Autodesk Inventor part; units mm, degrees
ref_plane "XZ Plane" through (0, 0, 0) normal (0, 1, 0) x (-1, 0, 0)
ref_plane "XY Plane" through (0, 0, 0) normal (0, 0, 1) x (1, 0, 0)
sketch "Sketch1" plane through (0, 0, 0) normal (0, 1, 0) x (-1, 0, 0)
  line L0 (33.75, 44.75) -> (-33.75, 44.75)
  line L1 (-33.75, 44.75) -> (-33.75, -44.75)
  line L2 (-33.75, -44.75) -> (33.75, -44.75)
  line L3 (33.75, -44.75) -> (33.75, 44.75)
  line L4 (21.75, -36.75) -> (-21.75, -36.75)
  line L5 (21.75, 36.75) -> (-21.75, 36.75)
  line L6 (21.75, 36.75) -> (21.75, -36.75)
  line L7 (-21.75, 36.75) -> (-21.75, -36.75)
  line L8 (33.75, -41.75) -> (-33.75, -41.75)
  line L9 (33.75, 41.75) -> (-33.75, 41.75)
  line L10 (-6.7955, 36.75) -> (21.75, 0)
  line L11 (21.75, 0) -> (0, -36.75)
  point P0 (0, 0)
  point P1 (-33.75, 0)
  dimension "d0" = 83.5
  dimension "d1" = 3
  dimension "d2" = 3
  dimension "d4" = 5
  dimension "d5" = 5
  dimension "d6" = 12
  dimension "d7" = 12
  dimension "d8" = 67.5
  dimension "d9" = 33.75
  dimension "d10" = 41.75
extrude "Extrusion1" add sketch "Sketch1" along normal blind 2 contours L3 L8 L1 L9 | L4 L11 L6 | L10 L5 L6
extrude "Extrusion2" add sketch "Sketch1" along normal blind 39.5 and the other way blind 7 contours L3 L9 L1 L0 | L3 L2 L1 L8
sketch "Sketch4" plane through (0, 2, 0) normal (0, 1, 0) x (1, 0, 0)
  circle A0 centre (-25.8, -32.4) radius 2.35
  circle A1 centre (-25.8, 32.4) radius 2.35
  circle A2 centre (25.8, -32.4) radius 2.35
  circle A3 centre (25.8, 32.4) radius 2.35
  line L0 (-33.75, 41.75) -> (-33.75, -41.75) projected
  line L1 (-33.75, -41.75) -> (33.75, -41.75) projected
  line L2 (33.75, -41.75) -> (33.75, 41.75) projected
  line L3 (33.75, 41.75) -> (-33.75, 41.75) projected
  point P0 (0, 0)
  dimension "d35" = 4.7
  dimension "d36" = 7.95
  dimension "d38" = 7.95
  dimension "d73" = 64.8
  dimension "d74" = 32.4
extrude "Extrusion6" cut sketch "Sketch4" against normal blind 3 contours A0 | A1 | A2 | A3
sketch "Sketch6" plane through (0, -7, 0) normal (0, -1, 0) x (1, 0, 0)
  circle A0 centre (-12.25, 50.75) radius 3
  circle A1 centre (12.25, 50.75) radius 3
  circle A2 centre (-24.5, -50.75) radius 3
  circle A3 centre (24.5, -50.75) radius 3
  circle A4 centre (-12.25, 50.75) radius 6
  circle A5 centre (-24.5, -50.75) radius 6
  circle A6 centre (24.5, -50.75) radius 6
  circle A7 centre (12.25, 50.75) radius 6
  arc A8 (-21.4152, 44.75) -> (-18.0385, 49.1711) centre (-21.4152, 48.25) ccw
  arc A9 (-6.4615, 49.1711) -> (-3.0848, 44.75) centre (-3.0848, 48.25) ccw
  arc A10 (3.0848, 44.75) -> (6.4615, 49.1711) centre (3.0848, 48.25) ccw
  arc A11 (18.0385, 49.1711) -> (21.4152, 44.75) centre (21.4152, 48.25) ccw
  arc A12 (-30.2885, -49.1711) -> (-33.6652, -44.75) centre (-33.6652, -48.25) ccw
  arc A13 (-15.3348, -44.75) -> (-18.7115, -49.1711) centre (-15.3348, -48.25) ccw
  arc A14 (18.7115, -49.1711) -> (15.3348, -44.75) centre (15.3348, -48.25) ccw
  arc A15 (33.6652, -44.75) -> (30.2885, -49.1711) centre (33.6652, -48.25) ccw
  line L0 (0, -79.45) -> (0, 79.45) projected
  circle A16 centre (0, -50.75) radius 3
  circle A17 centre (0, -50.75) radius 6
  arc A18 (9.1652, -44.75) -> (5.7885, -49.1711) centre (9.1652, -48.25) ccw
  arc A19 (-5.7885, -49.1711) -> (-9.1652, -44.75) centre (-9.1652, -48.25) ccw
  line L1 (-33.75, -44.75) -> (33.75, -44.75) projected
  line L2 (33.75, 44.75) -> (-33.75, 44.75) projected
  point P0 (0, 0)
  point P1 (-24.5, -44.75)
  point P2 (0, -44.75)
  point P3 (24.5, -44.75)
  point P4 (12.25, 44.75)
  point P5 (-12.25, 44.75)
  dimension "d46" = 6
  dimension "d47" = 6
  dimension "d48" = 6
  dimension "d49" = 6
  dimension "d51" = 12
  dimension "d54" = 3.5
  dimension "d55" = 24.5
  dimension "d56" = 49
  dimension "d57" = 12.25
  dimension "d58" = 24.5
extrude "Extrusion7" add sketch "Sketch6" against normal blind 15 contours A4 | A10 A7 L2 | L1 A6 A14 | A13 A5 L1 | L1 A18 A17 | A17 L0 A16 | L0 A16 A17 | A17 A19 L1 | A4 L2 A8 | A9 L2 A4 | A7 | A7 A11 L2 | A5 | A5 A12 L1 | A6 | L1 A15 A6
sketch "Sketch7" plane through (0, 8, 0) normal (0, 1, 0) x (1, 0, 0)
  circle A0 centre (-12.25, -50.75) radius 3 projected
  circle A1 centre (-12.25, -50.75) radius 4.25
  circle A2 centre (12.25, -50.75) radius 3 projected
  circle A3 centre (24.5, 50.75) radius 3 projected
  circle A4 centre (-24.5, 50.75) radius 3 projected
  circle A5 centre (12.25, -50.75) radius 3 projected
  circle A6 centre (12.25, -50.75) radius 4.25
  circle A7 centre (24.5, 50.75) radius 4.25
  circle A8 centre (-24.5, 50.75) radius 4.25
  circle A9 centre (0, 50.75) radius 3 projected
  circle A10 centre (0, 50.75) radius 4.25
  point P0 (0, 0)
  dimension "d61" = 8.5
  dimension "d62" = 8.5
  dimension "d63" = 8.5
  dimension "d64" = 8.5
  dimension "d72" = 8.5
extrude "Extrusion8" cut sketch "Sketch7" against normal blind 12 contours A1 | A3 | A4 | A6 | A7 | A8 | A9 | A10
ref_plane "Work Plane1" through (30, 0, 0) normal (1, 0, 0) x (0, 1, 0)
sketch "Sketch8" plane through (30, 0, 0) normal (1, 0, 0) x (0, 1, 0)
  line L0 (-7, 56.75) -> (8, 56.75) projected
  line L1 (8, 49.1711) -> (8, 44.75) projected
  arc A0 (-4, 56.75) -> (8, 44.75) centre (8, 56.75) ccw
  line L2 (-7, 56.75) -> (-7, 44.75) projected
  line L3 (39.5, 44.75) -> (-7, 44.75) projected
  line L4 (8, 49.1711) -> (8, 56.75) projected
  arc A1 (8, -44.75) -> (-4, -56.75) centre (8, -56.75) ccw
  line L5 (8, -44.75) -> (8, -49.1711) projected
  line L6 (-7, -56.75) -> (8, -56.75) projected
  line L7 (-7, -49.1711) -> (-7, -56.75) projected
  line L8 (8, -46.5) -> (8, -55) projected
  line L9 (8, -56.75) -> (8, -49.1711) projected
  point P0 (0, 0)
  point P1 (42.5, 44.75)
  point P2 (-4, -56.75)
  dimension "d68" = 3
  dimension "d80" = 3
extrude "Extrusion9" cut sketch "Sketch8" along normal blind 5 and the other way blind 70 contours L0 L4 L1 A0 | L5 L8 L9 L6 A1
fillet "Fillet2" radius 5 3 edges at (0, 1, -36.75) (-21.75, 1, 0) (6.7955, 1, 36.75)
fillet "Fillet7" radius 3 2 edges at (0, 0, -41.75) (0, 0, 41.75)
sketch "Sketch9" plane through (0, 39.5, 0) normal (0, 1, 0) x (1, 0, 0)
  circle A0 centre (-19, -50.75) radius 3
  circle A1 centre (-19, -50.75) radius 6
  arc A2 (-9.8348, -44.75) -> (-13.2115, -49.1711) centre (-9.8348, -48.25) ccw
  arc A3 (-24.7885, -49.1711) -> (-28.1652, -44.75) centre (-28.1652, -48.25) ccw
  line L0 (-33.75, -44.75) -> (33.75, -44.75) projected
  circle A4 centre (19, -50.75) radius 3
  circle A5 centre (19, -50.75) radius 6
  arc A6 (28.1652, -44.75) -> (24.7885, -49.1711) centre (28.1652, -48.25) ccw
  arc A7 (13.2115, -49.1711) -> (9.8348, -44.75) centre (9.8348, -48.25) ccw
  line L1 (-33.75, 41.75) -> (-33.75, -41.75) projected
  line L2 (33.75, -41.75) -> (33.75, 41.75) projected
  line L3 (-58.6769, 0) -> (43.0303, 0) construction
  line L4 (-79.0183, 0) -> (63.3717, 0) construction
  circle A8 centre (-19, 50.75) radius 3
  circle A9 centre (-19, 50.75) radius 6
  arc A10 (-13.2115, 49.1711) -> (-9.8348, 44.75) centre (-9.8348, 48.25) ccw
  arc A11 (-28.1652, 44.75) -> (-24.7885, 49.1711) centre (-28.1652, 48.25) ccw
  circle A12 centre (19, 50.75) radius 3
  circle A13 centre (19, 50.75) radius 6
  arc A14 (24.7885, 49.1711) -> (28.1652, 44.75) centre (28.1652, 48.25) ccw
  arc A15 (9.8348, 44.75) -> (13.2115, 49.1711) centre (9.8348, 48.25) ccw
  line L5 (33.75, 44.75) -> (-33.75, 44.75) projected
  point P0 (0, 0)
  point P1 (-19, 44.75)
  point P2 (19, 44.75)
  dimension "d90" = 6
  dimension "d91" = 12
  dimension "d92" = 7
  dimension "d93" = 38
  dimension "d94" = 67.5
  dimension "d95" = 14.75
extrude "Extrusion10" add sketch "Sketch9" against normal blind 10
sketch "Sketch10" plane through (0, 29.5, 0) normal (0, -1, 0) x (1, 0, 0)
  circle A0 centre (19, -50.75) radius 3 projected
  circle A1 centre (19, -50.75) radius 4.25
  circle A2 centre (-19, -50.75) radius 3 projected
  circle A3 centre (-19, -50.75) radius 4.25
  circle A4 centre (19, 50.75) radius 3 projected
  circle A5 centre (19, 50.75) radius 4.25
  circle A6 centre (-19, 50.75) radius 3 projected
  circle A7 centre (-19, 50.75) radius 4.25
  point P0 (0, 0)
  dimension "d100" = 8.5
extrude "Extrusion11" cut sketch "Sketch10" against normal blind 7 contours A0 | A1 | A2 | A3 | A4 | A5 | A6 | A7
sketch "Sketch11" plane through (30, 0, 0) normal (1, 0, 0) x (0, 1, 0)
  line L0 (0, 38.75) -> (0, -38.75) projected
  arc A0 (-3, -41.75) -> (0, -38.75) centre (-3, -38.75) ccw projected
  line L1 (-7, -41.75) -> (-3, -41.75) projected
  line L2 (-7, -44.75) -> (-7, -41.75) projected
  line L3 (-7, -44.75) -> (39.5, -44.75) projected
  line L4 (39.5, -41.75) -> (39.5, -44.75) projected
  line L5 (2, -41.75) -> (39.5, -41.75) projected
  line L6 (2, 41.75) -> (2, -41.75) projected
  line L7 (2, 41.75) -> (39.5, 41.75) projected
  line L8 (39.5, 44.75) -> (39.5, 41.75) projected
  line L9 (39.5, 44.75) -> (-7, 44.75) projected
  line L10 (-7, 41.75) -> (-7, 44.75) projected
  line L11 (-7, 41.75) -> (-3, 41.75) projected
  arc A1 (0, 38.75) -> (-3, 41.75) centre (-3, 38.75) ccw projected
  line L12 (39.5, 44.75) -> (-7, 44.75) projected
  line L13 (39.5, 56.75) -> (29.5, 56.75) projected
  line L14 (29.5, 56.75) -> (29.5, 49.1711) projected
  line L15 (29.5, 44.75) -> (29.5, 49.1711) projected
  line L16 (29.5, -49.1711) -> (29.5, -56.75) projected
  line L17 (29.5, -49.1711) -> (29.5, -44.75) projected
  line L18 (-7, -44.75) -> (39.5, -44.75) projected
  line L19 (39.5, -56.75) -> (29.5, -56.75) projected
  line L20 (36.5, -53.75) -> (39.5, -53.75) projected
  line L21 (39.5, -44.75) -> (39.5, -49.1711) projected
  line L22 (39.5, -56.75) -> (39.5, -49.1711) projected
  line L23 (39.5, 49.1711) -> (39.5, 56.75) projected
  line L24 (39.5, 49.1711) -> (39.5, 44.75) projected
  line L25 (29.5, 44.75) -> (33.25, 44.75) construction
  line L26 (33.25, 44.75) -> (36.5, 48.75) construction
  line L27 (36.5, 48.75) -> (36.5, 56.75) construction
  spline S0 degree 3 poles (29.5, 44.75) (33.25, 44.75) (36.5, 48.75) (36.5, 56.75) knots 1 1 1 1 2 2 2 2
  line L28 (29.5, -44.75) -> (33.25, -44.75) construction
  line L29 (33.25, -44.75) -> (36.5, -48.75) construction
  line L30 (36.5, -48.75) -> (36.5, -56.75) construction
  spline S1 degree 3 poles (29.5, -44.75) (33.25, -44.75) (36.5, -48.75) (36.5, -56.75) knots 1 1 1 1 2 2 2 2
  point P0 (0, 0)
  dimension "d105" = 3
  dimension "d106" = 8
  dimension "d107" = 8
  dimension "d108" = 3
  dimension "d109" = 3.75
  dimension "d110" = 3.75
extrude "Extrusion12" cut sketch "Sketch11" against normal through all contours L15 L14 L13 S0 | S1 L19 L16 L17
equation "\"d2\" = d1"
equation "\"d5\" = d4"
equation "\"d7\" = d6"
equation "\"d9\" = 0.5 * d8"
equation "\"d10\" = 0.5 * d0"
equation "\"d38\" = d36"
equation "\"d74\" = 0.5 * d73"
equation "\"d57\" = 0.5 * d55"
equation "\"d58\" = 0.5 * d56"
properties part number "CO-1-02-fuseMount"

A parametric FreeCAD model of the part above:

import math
import FreeCAD as App
import Part
import Sketcher
from FreeCAD import Vector
Q = App.Units.Quantity


def edges_at(feature, points):
    """Names of the edges that pass closest to the given points."""
    edges = feature.Shape.Edges
    near = lambda p: min(range(len(edges)), key=lambda i: edges[i].distToShape(Part.Vertex(*p))[0])
    return sorted({f"Edge{near(p) + 1}" for p in points})

doc = App.newDocument("Part")
body = doc.addObject("PartDesign::Body", "Body")

# Sketch on XZ plane
sketch1 = doc.addObject("Sketcher::SketchObject", "Sketch")
body.addObject(sketch1)
sketch1.AttachmentSupport = (doc.XZ_Plane, [""])
sketch1.MapMode = "FlatFace"
sketch1.addGeometry(Part.LineSegment(Vector(-34, -42, 0), Vector(-34, 42, 0)), False)
sketch1.addGeometry(Part.LineSegment(Vector(-34, 42, 0), Vector(34, 42, 0)), False)
sketch1.addGeometry(Part.LineSegment(Vector(34, 42, 0), Vector(34, -42, 0)), False)
sketch1.addGeometry(Part.LineSegment(Vector(34, -42, 0), Vector(-34, -42, 0)), False)
sketch1.addGeometry(Part.LineSegment(Vector(22, 37, 0), Vector(7, 37, 0)), False)
sketch1.addGeometry(Part.LineSegment(Vector(7, 37, 0), Vector(-22, 0, 0)), False)
sketch1.addGeometry(Part.LineSegment(Vector(-22, 0, 0), Vector(0, -37, 0)), False)
sketch1.addGeometry(Part.LineSegment(Vector(0, -37, 0), Vector(22, -37, 0)), False)
sketch1.addGeometry(Part.LineSegment(Vector(22, -37, 0), Vector(22, 37, 0)), False)
sketch1.addConstraint(Sketcher.Constraint("Coincident", 0, 2, 1, 1))
sketch1.addConstraint(Sketcher.Constraint("Coincident", 1, 2, 2, 1))
sketch1.addConstraint(Sketcher.Constraint("Coincident", 2, 2, 3, 1))
sketch1.addConstraint(Sketcher.Constraint("Coincident", 3, 2, 0, 1))
sketch1.addConstraint(Sketcher.Constraint("Coincident", 4, 2, 5, 1))
sketch1.addConstraint(Sketcher.Constraint("Coincident", 5, 2, 6, 1))
sketch1.addConstraint(Sketcher.Constraint("Coincident", 6, 2, 7, 1))
sketch1.addConstraint(Sketcher.Constraint("Coincident", 7, 2, 8, 1))
sketch1.addConstraint(Sketcher.Constraint("Coincident", 8, 2, 4, 1))
sketch1.addConstraint(Sketcher.Constraint("Vertical", 0))
sketch1.addConstraint(Sketcher.Constraint("Horizontal", 1))
sketch1.addConstraint(Sketcher.Constraint("Vertical", 2))
sketch1.addConstraint(Sketcher.Constraint("Horizontal", 3))
sketch1.addConstraint(Sketcher.Constraint("Horizontal", 4))
sketch1.addConstraint(Sketcher.Constraint("Horizontal", 7))
sketch1.addConstraint(Sketcher.Constraint("Vertical", 8))
sketch1.addConstraint(Sketcher.Constraint("Symmetric", 0, 2, 2, 2, -1, 1))
sketch1.addConstraint(Sketcher.Constraint("PointOnObject", 5, 2, -1))
sketch1.addConstraint(Sketcher.Constraint("PointOnObject", 6, 2, -2))
sketch1.addConstraint(Sketcher.Constraint("DistanceX", 1, 1, 1, 2, Q("67.5 mm")))
sketch1.addConstraint(Sketcher.Constraint("DistanceY", 0, 1, 0, 2, Q("83.5 mm")))
sketch1.addConstraint(Sketcher.Constraint("DistanceY", 4, 2, 1, 2, Q("5 mm")))
sketch1.addConstraint(Sketcher.Constraint("DistanceX", 0, 2, 5, 2, Q("12 mm")))
sketch1.addConstraint(Sketcher.Constraint("DistanceY", 2, 2, 6, 2, Q("5 mm")))
sketch1.addConstraint(Sketcher.Constraint("DistanceX", 7, 2, 2, 2, Q("12 mm")))
sketch1.addConstraint(Sketcher.Constraint("Distance", 5, Q("46.534 mm")))
pad1 = doc.addObject("PartDesign::Pad", "Pad")
body.addObject(pad1)
pad1.Profile = sketch1
pad1.Length = 2
pad1.Reversed = True

# Sketch on XZ plane
sketch2 = doc.addObject("Sketcher::SketchObject", "Sketch001")
body.addObject(sketch2)
sketch2.AttachmentSupport = (doc.XZ_Plane, [""])
sketch2.MapMode = "FlatFace"
sketch2.addGeometry(Part.LineSegment(Vector(-33.8, 41.8, 0), Vector(-33.8, 44.8, 0)), False)
sketch2.addGeometry(Part.LineSegment(Vector(-33.8, 44.8, 0), Vector(33.8, 44.8, 0)), False)
sketch2.addGeometry(Part.LineSegment(Vector(33.8, 44.8, 0), Vector(33.8, 41.8, 0)), False)
sketch2.addGeometry(Part.LineSegment(Vector(33.8, 41.8, 0), Vector(-33.8, 41.8, 0)), False)
sketch2.addGeometry(Part.LineSegment(Vector(-33.8, -44.8, 0), Vector(-33.8, -41.8, 0)), False)
sketch2.addGeometry(Part.LineSegment(Vector(-33.8, -41.8, 0), Vector(33.8, -41.8, 0)), False)
sketch2.addGeometry(Part.LineSegment(Vector(33.8, -41.8, 0), Vector(33.8, -44.8, 0)), False)
sketch2.addGeometry(Part.LineSegment(Vector(33.8, -44.8, 0), Vector(-33.8, -44.8, 0)), False)
sketch2.addConstraint(Sketcher.Constraint("Coincident", 0, 2, 1, 1))
sketch2.addConstraint(Sketcher.Constraint("Coincident", 1, 2, 2, 1))
sketch2.addConstraint(Sketcher.Constraint("Coincident", 2, 2, 3, 1))
sketch2.addConstraint(Sketcher.Constraint("Coincident", 3, 2, 0, 1))
sketch2.addConstraint(Sketcher.Constraint("Coincident", 4, 2, 5, 1))
sketch2.addConstraint(Sketcher.Constraint("Coincident", 5, 2, 6, 1))
sketch2.addConstraint(Sketcher.Constraint("Coincident", 6, 2, 7, 1))
sketch2.addConstraint(Sketcher.Constraint("Coincident", 7, 2, 4, 1))
sketch2.addConstraint(Sketcher.Constraint("Vertical", 0))
sketch2.addConstraint(Sketcher.Constraint("Horizontal", 1))
sketch2.addConstraint(Sketcher.Constraint("Vertical", 2))
sketch2.addConstraint(Sketcher.Constraint("Horizontal", 3))
sketch2.addConstraint(Sketcher.Constraint("Vertical", 4))
sketch2.addConstraint(Sketcher.Constraint("Horizontal", 5))
sketch2.addConstraint(Sketcher.Constraint("Vertical", 6))
sketch2.addConstraint(Sketcher.Constraint("Horizontal", 7))
sketch2.addConstraint(Sketcher.Constraint("Symmetric", 2, 2, 4, 2, -1, 1))
sketch2.addConstraint(Sketcher.Constraint("Symmetric", 0, 2, 6, 2, -1, 1))
sketch2.addConstraint(Sketcher.Constraint("Vertical", 3, 2, 4, 2))
sketch2.addConstraint(Sketcher.Constraint("DistanceY", 0, 1, 0, 2, Q("3 mm")))
sketch2.addConstraint(Sketcher.Constraint("DistanceX", 1, 1, 1, 2, Q("67.5 mm")))
sketch2.addConstraint(Sketcher.Constraint("DistanceY", 4, 2, 3, 2, Q("83.5 mm")))
pad2 = doc.addObject("PartDesign::Pad", "Pad001")
body.addObject(pad2)
pad2.Profile = sketch2
pad2.Type = "TwoLengths"
pad2.Length = 39.5
pad2.Length2 = 7
pad2.Reversed = True

# Sketch on XZ plane
sketch3 = doc.addObject("Sketcher::SketchObject", "Sketch002")
body.addObject(sketch3)
sketch3.AttachmentSupport = (doc.XZ_Plane, [""])
sketch3.MapMode = "FlatFace"
sketch3.AttachmentOffset = App.Placement(Vector(0, 0, -2), App.Rotation())
sketch3.addGeometry(Part.Circle(Vector(-25.8, 32.4, 0), Vector(0, 0, 1), 2.4), False)
sketch3.addGeometry(Part.Circle(Vector(-25.8, -32.4, 0), Vector(0, 0, 1), 2.4), False)
sketch3.addGeometry(Part.Circle(Vector(25.8, 32.4, 0), Vector(0, 0, 1), 2.4), False)
sketch3.addGeometry(Part.Circle(Vector(25.8, -32.4, 0), Vector(0, 0, 1), 2.4), False)
sketch3.addConstraint(Sketcher.Constraint("Equal", 0, 1))
sketch3.addConstraint(Sketcher.Constraint("Equal", 1, 2))
sketch3.addConstraint(Sketcher.Constraint("Equal", 2, 3))
sketch3.addConstraint(Sketcher.Constraint("Symmetric", 1, 3, 2, 3, -1, 1))
sketch3.addConstraint(Sketcher.Constraint("Symmetric", 0, 3, 3, 3, -1, 1))
sketch3.addConstraint(Sketcher.Constraint("Symmetric", 0, 3, 2, 3, -2))
sketch3.addConstraint(Sketcher.Constraint("Diameter", 0, Q("4.7 mm")))
sketch3.addConstraint(Sketcher.Constraint("DistanceY", -1, 1, 0, 3, Q("32.4 mm")))
sketch3.addConstraint(Sketcher.Constraint("DistanceX", 0, 3, -1, 1, Q("25.8 mm")))
pocket1 = doc.addObject("PartDesign::Pocket", "Pocket")
body.addObject(pocket1)
pocket1.Profile = sketch3
pocket1.Length = 3
pocket1.Reversed = True

# Sketch on XZ plane
sketch4 = doc.addObject("Sketcher::SketchObject", "Sketch003")
body.addObject(sketch4)
sketch4.AttachmentSupport = (doc.XZ_Plane, [""])
sketch4.MapMode = "FlatFace"
sketch4.AttachmentOffset = App.Placement(Vector(0, 0, 7), App.Rotation())
sketch4.addGeometry(Part.ArcOfCircle(Part.Circle(Vector(-12.2, 50.8, 0), Vector(0, 0, 1), 6), math.radians(-15), math.radians(195)), False)
sketch4.addGeometry(Part.ArcOfCircle(Part.Circle(Vector(-21.4, 48.2, 0), Vector(0, 0, 1), 3.5), math.radians(-90), math.radians(15)), False)
sketch4.addGeometry(Part.LineSegment(Vector(-21.4, 44.8, 0), Vector(-3.1, 44.8, 0)), False)
sketch4.addGeometry(Part.ArcOfCircle(Part.Circle(Vector(-3.1, 48.2, 0), Vector(0, 0, 1), 3.5), math.radians(165), math.radians(270)), False)
sketch4.addGeometry(Part.Circle(Vector(-12.2, 50.8, 0), Vector(0, 0, 1), 3), False)
sketch4.addGeometry(Part.ArcOfCircle(Part.Circle(Vector(3.1, 48.2, 0), Vector(0, 0, 1), 3.5), math.radians(-90), math.radians(15)), False)
sketch4.addGeometry(Part.LineSegment(Vector(3.1, 44.8, 0), Vector(21.4, 44.8, 0)), False)
sketch4.addGeometry(Part.ArcOfCircle(Part.Circle(Vector(21.4, 48.2, 0), Vector(0, 0, 1), 3.5), math.radians(165), math.radians(270)), False)
sketch4.addGeometry(Part.ArcOfCircle(Part.Circle(Vector(12.2, 50.8, 0), Vector(0, 0, 1), 6), math.radians(-15), math.radians(195)), False)
sketch4.addGeometry(Part.Circle(Vector(12.2, 50.8, 0), Vector(0, 0, 1), 3), False)
sketch4.addGeometry(Part.ArcOfCircle(Part.Circle(Vector(15.3, -48.2, 0), Vector(0, 0, 1), 3.5), math.radians(-15), math.radians(90)), False)
sketch4.addGeometry(Part.ArcOfCircle(Part.Circle(Vector(24.5, -50.8, 0), Vector(0, 0, 1), 6), math.radians(165), math.radians(375)), False)
sketch4.addGeometry(Part.ArcOfCircle(Part.Circle(Vector(33.7, -48.2, 0), Vector(0, 0, 1), 3.5), math.radians(90), math.radians(195)), False)
sketch4.addGeometry(Part.LineSegment(Vector(33.7, -44.8, 0), Vector(15.3, -44.8, 0)), False)
sketch4.addGeometry(Part.Circle(Vector(24.5, -50.8, 0), Vector(0, 0, 1), 3), False)
sketch4.addGeometry(Part.ArcOfCircle(Part.Circle(Vector(-15.3, -48.2, 0), Vector(0, 0, 1), 3.5), math.radians(90), math.radians(195)), False)
sketch4.addGeometry(Part.LineSegment(Vector(-15.3, -44.8, 0), Vector(-33.7, -44.8, 0)), False)
sketch4.addGeometry(Part.ArcOfCircle(Part.Circle(Vector(-33.7, -48.2, 0), Vector(0, 0, 1), 3.5), math.radians(-15), math.radians(90)), False)
sketch4.addGeometry(Part.ArcOfCircle(Part.Circle(Vector(-24.5, -50.8, 0), Vector(0, 0, 1), 6), math.radians(165), math.radians(375)), False)
sketch4.addGeometry(Part.Circle(Vector(-24.5, -50.8, 0), Vector(0, 0, 1), 3), False)
sketch4.addGeometry(Part.LineSegment(Vector(9.2, -44.8, 0), Vector(-9.2, -44.8, 0)), False)
sketch4.addGeometry(Part.ArcOfCircle(Part.Circle(Vector(-9.2, -48.2, 0), Vector(0, 0, 1), 3.5), math.radians(-15), math.radians(90)), False)
sketch4.addGeometry(Part.ArcOfCircle(Part.Circle(Vector(0, -50.8, 0), Vector(0, 0, 1), 6), math.radians(165), math.radians(375)), False)
sketch4.addGeometry(Part.ArcOfCircle(Part.Circle(Vector(9.2, -48.2, 0), Vector(0, 0, 1), 3.5), math.radians(90), math.radians(195)), False)
sketch4.addGeometry(Part.Circle(Vector(0, -50.8, 0), Vector(0, 0, 1), 3), False)
sketch4.addConstraint(Sketcher.Constraint("Tangent", 0, 2, 1, 2))
sketch4.addConstraint(Sketcher.Constraint("Tangent", 1, 1, 2, 1))
sketch4.addConstraint(Sketcher.Constraint("Tangent", 2, 2, 3, 2))
sketch4.addConstraint(Sketcher.Constraint("Tangent", 3, 1, 0, 1))
sketch4.addConstraint(Sketcher.Constraint("Tangent", 5, 1, 6, 1))
sketch4.addConstraint(Sketcher.Constraint("Tangent", 6, 2, 7, 2))
sketch4.addConstraint(Sketcher.Constraint("Tangent", 7, 1, 8, 1))
sketch4.addConstraint(Sketcher.Constraint("Tangent", 8, 2, 5, 2))
sketch4.addConstraint(Sketcher.Constraint("Tangent", 10, 1, 11, 1))
sketch4.addConstraint(Sketcher.Constraint("Tangent", 11, 2, 12, 2))
sketch4.addConstraint(Sketcher.Constraint("Tangent", 12, 1, 13, 1))
sketch4.addConstraint(Sketcher.Constraint("Tangent", 13, 2, 10, 2))
sketch4.addConstraint(Sketcher.Constraint("Tangent", 15, 1, 16, 1))
sketch4.addConstraint(Sketcher.Constraint("Tangent", 16, 2, 17, 2))
sketch4.addConstraint(Sketcher.Constraint("Tangent", 17, 1, 18, 1))
sketch4.addConstraint(Sketcher.Constraint("Tangent", 18, 2, 15, 2))
sketch4.addConstraint(Sketcher.Constraint("Tangent", 20, 2, 21, 2))
sketch4.addConstraint(Sketcher.Constraint("Tangent", 21, 1, 22, 1))
sketch4.addConstraint(Sketcher.Constraint("Tangent", 22, 2, 23, 2))
sketch4.addConstraint(Sketcher.Constraint("Tangent", 23, 1, 20, 1))
sketch4.addConstraint(Sketcher.Constraint("Horizontal", 2))
sketch4.addConstraint(Sketcher.Constraint("Horizontal", 6))
sketch4.addConstraint(Sketcher.Constraint("Horizontal", 13))
sketch4.addConstraint(Sketcher.Constraint("Horizontal", 16))
sketch4.addConstraint(Sketcher.Constraint("Horizontal", 20))
sketch4.addConstraint(Sketcher.Constraint("Coincident", 4, 3, 0, 3))
sketch4.addConstraint(Sketcher.Constraint("Coincident", 9, 3, 8, 3))
sketch4.addConstraint(Sketcher.Constraint("Coincident", 14, 3, 11, 3))
sketch4.addConstraint(Sketcher.Constraint("Coincident", 19, 3, 18, 3))
sketch4.addConstraint(Sketcher.Constraint("Coincident", 24, 3, 22, 3))
sketch4.addConstraint(Sketcher.Constraint("Equal", 1, 3))
sketch4.addConstraint(Sketcher.Constraint("Equal", 3, 5))
sketch4.addConstraint(Sketcher.Constraint("Equal", 5, 7))
sketch4.addConstraint(Sketcher.Constraint("Equal", 0, 8))
sketch4.addConstraint(Sketcher.Constraint("Equal", 4, 9))
sketch4.addConstraint(Sketcher.Constraint("Equal", 7, 10))
sketch4.addConstraint(Sketcher.Constraint("Equal", 8, 11))
sketch4.addConstraint(Sketcher.Constraint("Equal", 10, 12))
sketch4.addConstraint(Sketcher.Constraint("Equal", 9, 14))
sketch4.addConstraint(Sketcher.Constraint("Equal", 12, 15))
sketch4.addConstraint(Sketcher.Constraint("Equal", 15, 17))
sketch4.addConstraint(Sketcher.Constraint("Equal", 11, 18))
sketch4.addConstraint(Sketcher.Constraint("Equal", 14, 19))
sketch4.addConstraint(Sketcher.Constraint("Equal", 17, 21))
sketch4.addConstraint(Sketcher.Constraint("Equal", 18, 22))
sketch4.addConstraint(Sketcher.Constraint("Equal", 21, 23))
sketch4.addConstraint(Sketcher.Constraint("Equal", 19, 24))
sketch4.addConstraint(Sketcher.Constraint("Symmetric", 3, 3, 5, 3, -2))
sketch4.addConstraint(Sketcher.Constraint("Symmetric", 10, 3, 15, 3, -2))
sketch4.addConstraint(Sketcher.Constraint("PointOnObject", 22, 3, -2))
sketch4.addConstraint(Sketcher.Constraint("Horizontal", 4, 3, 8, 3))
sketch4.addConstraint(Sketcher.Constraint("Horizontal", 14, 3, 18, 3))
sketch4.addConstraint(Sketcher.Constraint("Horizontal", 17, 3, 21, 3))
sketch4.addConstraint(Sketcher.Constraint("Horizontal", 19, 3, 22, 3))
sketch4.addConstraint(Sketcher.Constraint("Equal", 6, 13))
sketch4.addConstraint(Sketcher.Constraint("Diameter", 4, Q("6 mm")))
sketch4.addConstraint(Sketcher.Constraint("Radius", 0, Q("6 mm")))
sketch4.addConstraint(Sketcher.Constraint("Radius", 1, Q("3.5 mm")))
sketch4.addConstraint(Sketcher.Constraint("DistanceX", 15, 3, 12, 3, Q("49 mm")))
sketch4.addConstraint(Sketcher.Constraint("DistanceY", 1, 1, 0, 3, Q("6 mm")))
sketch4.addConstraint(Sketcher.Constraint("DistanceX", 1, 3, 5, 3, Q("24.5 mm")))
sketch4.addConstraint(Sketcher.Constraint("DistanceY", 10, 3, 8, 3, Q("99 mm")))
sketch4.addConstraint(Sketcher.Constraint("DistanceY", -1, 1, 0, 3, Q("50.75 mm")))
pad3 = doc.addObject("PartDesign::Pad", "Pad002")
body.addObject(pad3)
pad3.Profile = sketch4
pad3.Length = 15
pad3.Reversed = True

# Sketch on XZ plane
sketch5 = doc.addObject("Sketcher::SketchObject", "Sketch004")
body.addObject(sketch5)
sketch5.AttachmentSupport = (doc.XZ_Plane, [""])
sketch5.MapMode = "FlatFace"
sketch5.AttachmentOffset = App.Placement(Vector(0, 0, -8), App.Rotation())
sketch5.addGeometry(Part.Circle(Vector(-12.2, 50.8, 0), Vector(0, 0, 1), 4.2), False)
sketch5.addGeometry(Part.Circle(Vector(-12.2, 50.8, 0), Vector(0, 0, 1), 3), False)
sketch5.addGeometry(Part.Circle(Vector(24.5, -50.8, 0), Vector(0, 0, 1), 4.2), False)
sketch5.addGeometry(Part.Circle(Vector(-24.5, -50.8, 0), Vector(0, 0, 1), 4.2), False)
sketch5.addGeometry(Part.Circle(Vector(12.2, 50.8, 0), Vector(0, 0, 1), 4.2), False)
sketch5.addGeometry(Part.Circle(Vector(12.2, 50.8, 0), Vector(0, 0, 1), 3), False)
sketch5.addGeometry(Part.Circle(Vector(0, -50.8, 0), Vector(0, 0, 1), 4.2), False)
sketch5.addConstraint(Sketcher.Constraint("Coincident", 1, 3, 0, 3))
sketch5.addConstraint(Sketcher.Constraint("Coincident", 5, 3, 4, 3))
sketch5.addConstraint(Sketcher.Constraint("Equal", 0, 2))
sketch5.addConstraint(Sketcher.Constraint("Equal", 2, 3))
sketch5.addConstraint(Sketcher.Constraint("Equal", 3, 4))
sketch5.addConstraint(Sketcher.Constraint("Equal", 1, 5))
sketch5.addConstraint(Sketcher.Constraint("Equal", 4, 6))
sketch5.addConstraint(Sketcher.Constraint("Symmetric", 2, 3, 3, 3, -2))
sketch5.addConstraint(Sketcher.Constraint("Symmetric", 0, 3, 4, 3, -2))
sketch5.addConstraint(Sketcher.Constraint("PointOnObject", 6, 3, -2))
sketch5.addConstraint(Sketcher.Constraint("Horizontal", 3, 3, 6, 3))
sketch5.addConstraint(Sketcher.Constraint("Diameter", 0, Q("8.5 mm")))
sketch5.addConstraint(Sketcher.Constraint("Diameter", 1, Q("6 mm")))
sketch5.addConstraint(Sketcher.Constraint("DistanceX", 3, 3, 2, 3, Q("49 mm")))
sketch5.addConstraint(Sketcher.Constraint("DistanceY", 2, 3, 0, 3, Q("101.5 mm")))
sketch5.addConstraint(Sketcher.Constraint("DistanceX", 0, 3, 4, 3, Q("24.5 mm")))
sketch5.addConstraint(Sketcher.Constraint("DistanceY", -1, 1, 0, 3, Q("50.75 mm")))
pocket2 = doc.addObject("PartDesign::Pocket", "Pocket001")
body.addObject(pocket2)
pocket2.Profile = sketch5
pocket2.Length = 12
pocket2.Reversed = True

# Sketch on YZ plane
sketch6 = doc.addObject("Sketcher::SketchObject", "Sketch005")
body.addObject(sketch6)
sketch6.AttachmentSupport = (doc.YZ_Plane, [""])
sketch6.MapMode = "FlatFace"
sketch6.AttachmentOffset = App.Placement(Vector(0, 0, 30), App.Rotation())
sketch6.addGeometry(Part.LineSegment(Vector(8, 57, 0), Vector(-4, 57, 0)), False)
sketch6.addGeometry(Part.ArcOfCircle(Part.Circle(Vector(8, 57, 0), Vector(0, 0, 1), 12), math.radians(180), math.radians(270)), False)
sketch6.addGeometry(Part.LineSegment(Vector(8, 45, 0), Vector(8, 57, 0)), False)
sketch6.addGeometry(Part.LineSegment(Vector(8, -57, 0), Vector(8, -45, 0)), False)
sketch6.addGeometry(Part.ArcOfCircle(Part.Circle(Vector(8, -57, 0), Vector(0, 0, 1), 12), math.radians(90), math.radians(180)), False)
sketch6.addGeometry(Part.LineSegment(Vector(-4, -57, 0), Vector(8, -57, 0)), False)
sketch6.addConstraint(Sketcher.Constraint("Coincident", 0, 2, 1, 1))
sketch6.addConstraint(Sketcher.Constraint("Coincident", 1, 2, 2, 1))
sketch6.addConstraint(Sketcher.Constraint("Coincident", 2, 2, 0, 1))
sketch6.addConstraint(Sketcher.Constraint("Coincident", 3, 2, 4, 1))
sketch6.addConstraint(Sketcher.Constraint("Coincident", 4, 2, 5, 1))
sketch6.addConstraint(Sketcher.Constraint("Coincident", 5, 2, 3, 1))
sketch6.addConstraint(Sketcher.Constraint("Horizontal", 0))
sketch6.addConstraint(Sketcher.Constraint("Vertical", 2))
sketch6.addConstraint(Sketcher.Constraint("Vertical", 3))
sketch6.addConstraint(Sketcher.Constraint("Horizontal", 5))
sketch6.addConstraint(Sketcher.Constraint("Coincident", 2, 2, 1, 3))
sketch6.addConstraint(Sketcher.Constraint("Coincident", 5, 2, 4, 3))
sketch6.addConstraint(Sketcher.Constraint("Equal", 1, 4))
sketch6.addConstraint(Sketcher.Constraint("Symmetric", 1, 3, 4, 3, -1))
sketch6.addConstraint(Sketcher.Constraint("Radius", 1, Q("12 mm")))
sketch6.addConstraint(Sketcher.Constraint("DistanceX", -1, 1, 1, 3, Q("8 mm")))
sketch6.addConstraint(Sketcher.Constraint("DistanceY", 4, 3, 1, 3, Q("113.5 mm")))
pocket3 = doc.addObject("PartDesign::Pocket", "Pocket002")
body.addObject(pocket3)
pocket3.Profile = sketch6
pocket3.Type = "ThroughAll"
pocket3.Midplane = True
doc.recompute()

fillet = doc.addObject("PartDesign::Fillet", "Fillet")
body.addObject(fillet)
fillet.Base = (pocket3, edges_at(pocket3, [(0, 1, -36.75), (-21.75, 1, 0), (6.795, 1, 36.75)]))
fillet.Radius = 5
doc.recompute()

fillet2 = doc.addObject("PartDesign::Fillet", "Fillet001")
body.addObject(fillet2)
fillet2.Base = (fillet, edges_at(fillet, [(0, 0, -41.75), (0, 0, 41.75)]))
fillet2.Radius = 3

# Sketch on XZ plane
sketch7 = doc.addObject("Sketcher::SketchObject", "Sketch006")
body.addObject(sketch7)
sketch7.AttachmentSupport = (doc.XZ_Plane, [""])
sketch7.MapMode = "FlatFace"
sketch7.AttachmentOffset = App.Placement(Vector(0, 0, -39.5), App.Rotation())
sketch7.addGeometry(Part.ArcOfCircle(Part.Circle(Vector(-19, 50.8, 0), Vector(0, 0, 1), 6), math.radians(-15), math.radians(195)), False)
sketch7.addGeometry(Part.ArcOfCircle(Part.Circle(Vector(-9.8, 48.2, 0), Vector(0, 0, 1), 3.5), math.radians(165), math.radians(270)), False)
sketch7.addGeometry(Part.LineSegment(Vector(-9.8, 44.8, 0), Vector(-28.2, 44.8, 0)), False)
sketch7.addGeometry(Part.ArcOfCircle(Part.Circle(Vector(-28.2, 48.2, 0), Vector(0, 0, 1), 3.5), math.radians(-90), math.radians(15)), False)
sketch7.addGeometry(Part.Circle(Vector(-19, 50.8, 0), Vector(0, 0, 1), 3), False)
sketch7.addGeometry(Part.ArcOfCircle(Part.Circle(Vector(9.8, 48.2, 0), Vector(0, 0, 1), 3.5), math.radians(-90), math.radians(15)), False)
sketch7.addGeometry(Part.ArcOfCircle(Part.Circle(Vector(19, 50.8, 0), Vector(0, 0, 1), 6), math.radians(-15), math.radians(195)), False)
sketch7.addGeometry(Part.ArcOfCircle(Part.Circle(Vector(28.2, 48.2, 0), Vector(0, 0, 1), 3.5), math.radians(165), math.radians(270)), False)
sketch7.addGeometry(Part.LineSegment(Vector(28.2, 44.8, 0), Vector(9.8, 44.8, 0)), False)
sketch7.addGeometry(Part.Circle(Vector(19, 50.8, 0), Vector(0, 0, 1), 3), False)
sketch7.addGeometry(Part.ArcOfCircle(Part.Circle(Vector(-19, -50.8, 0), Vector(0, 0, 1), 6), math.radians(165), math.radians(375)), False)
sketch7.addGeometry(Part.ArcOfCircle(Part.Circle(Vector(-28.2, -48.2, 0), Vector(0, 0, 1), 3.5), math.radians(-15), math.radians(90)), False)
sketch7.addGeometry(Part.LineSegment(Vector(-28.2, -44.8, 0), Vector(-9.8, -44.8, 0)), False)
sketch7.addGeometry(Part.ArcOfCircle(Part.Circle(Vector(-9.8, -48.2, 0), Vector(0, 0, 1), 3.5), math.radians(90), math.radians(195)), False)
sketch7.addGeometry(Part.Circle(Vector(-19, -50.8, 0), Vector(0, 0, 1), 3), False)
sketch7.addGeometry(Part.ArcOfCircle(Part.Circle(Vector(9.8, -48.2, 0), Vector(0, 0, 1), 3.5), math.radians(-15), math.radians(90)), False)
sketch7.addGeometry(Part.LineSegment(Vector(9.8, -44.8, 0), Vector(28.2, -44.8, 0)), False)
sketch7.addGeometry(Part.ArcOfCircle(Part.Circle(Vector(28.2, -48.2, 0), Vector(0, 0, 1), 3.5), math.radians(90), math.radians(195)), False)
sketch7.addGeometry(Part.ArcOfCircle(Part.Circle(Vector(19, -50.8, 0), Vector(0, 0, 1), 6), math.radians(165), math.radians(375)), False)
sketch7.addGeometry(Part.Circle(Vector(19, -50.8, 0), Vector(0, 0, 1), 3), False)
sketch7.addConstraint(Sketcher.Constraint("Tangent", 0, 1, 1, 1))
sketch7.addConstraint(Sketcher.Constraint("Tangent", 1, 2, 2, 1))
sketch7.addConstraint(Sketcher.Constraint("Tangent", 2, 2, 3, 1))
sketch7.addConstraint(Sketcher.Constraint("Tangent", 3, 2, 0, 2))
sketch7.addConstraint(Sketcher.Constraint("Tangent", 5, 2, 6, 2))
sketch7.addConstraint(Sketcher.Constraint("Tangent", 6, 1, 7, 1))
sketch7.addConstraint(Sketcher.Constraint("Tangent", 7, 2, 8, 1))
sketch7.addConstraint(Sketcher.Constraint("Tangent", 8, 2, 5, 1))
sketch7.addConstraint(Sketcher.Constraint("Tangent", 10, 1, 11, 1))
sketch7.addConstraint(Sketcher.Constraint("Tangent", 11, 2, 12, 1))
sketch7.addConstraint(Sketcher.Constraint("Tangent", 12, 2, 13, 1))
sketch7.addConstraint(Sketcher.Constraint("Tangent", 13, 2, 10, 2))
sketch7.addConstraint(Sketcher.Constraint("Tangent", 15, 2, 16, 1))
sketch7.addConstraint(Sketcher.Constraint("Tangent", 16, 2, 17, 1))
sketch7.addConstraint(Sketcher.Constraint("Tangent", 17, 2, 18, 2))
sketch7.addConstraint(Sketcher.Constraint("Tangent", 18, 1, 15, 1))
sketch7.addConstraint(Sketcher.Constraint("Horizontal", 2))
sketch7.addConstraint(Sketcher.Constraint("Horizontal", 8))
sketch7.addConstraint(Sketcher.Constraint("Horizontal", 12))
sketch7.addConstraint(Sketcher.Constraint("Horizontal", 16))
sketch7.addConstraint(Sketcher.Constraint("Coincident", 4, 3, 0, 3))
sketch7.addConstraint(Sketcher.Constraint("Coincident", 9, 3, 6, 3))
sketch7.addConstraint(Sketcher.Constraint("Coincident", 14, 3, 10, 3))
sketch7.addConstraint(Sketcher.Constraint("Coincident", 19, 3, 18, 3))
sketch7.addConstraint(Sketcher.Constraint("Equal", 1, 3))
sketch7.addConstraint(Sketcher.Constraint("Equal", 3, 5))
sketch7.addConstraint(Sketcher.Constraint("Equal", 0, 6))
sketch7.addConstraint(Sketcher.Constraint("Equal", 5, 7))
sketch7.addConstraint(Sketcher.Constraint("Equal", 4, 9))
sketch7.addConstraint(Sketcher.Constraint("Equal", 6, 10))
sketch7.addConstraint(Sketcher.Constraint("Equal", 7, 11))
sketch7.addConstraint(Sketcher.Constraint("Equal", 11, 13))
sketch7.addConstraint(Sketcher.Constraint("Equal", 9, 14))
sketch7.addConstraint(Sketcher.Constraint("Equal", 13, 15))
sketch7.addConstraint(Sketcher.Constraint("Equal", 15, 17))
sketch7.addConstraint(Sketcher.Constraint("Equal", 10, 18))
sketch7.addConstraint(Sketcher.Constraint("Equal", 14, 19))
sketch7.addConstraint(Sketcher.Constraint("Symmetric", 6, 3, 10, 3, -1, 1))
sketch7.addConstraint(Sketcher.Constraint("Symmetric", 1, 3, 15, 3, -1, 1))
sketch7.addConstraint(Sketcher.Constraint("Symmetric", 1, 3, 5, 3, -2))
sketch7.addConstraint(Sketcher.Constraint("Symmetric", 11, 3, 17, 3, -2))
sketch7.addConstraint(Sketcher.Constraint("Horizontal", 4, 3, 6, 3))
sketch7.addConstraint(Sketcher.Constraint("Diameter", 4, Q("6 mm")))
sketch7.addConstraint(Sketcher.Constraint("Radius", 0, Q("6 mm")))
sketch7.addConstraint(Sketcher.Constraint("Radius", 1, Q("3.5 mm")))
sketch7.addConstraint(Sketcher.Constraint("DistanceX", 3, 3, 5, 3, Q("38 mm")))
sketch7.addConstraint(Sketcher.Constraint("DistanceY", 1, 2, 0, 3, Q("6 mm")))
sketch7.addConstraint(Sketcher.Constraint("DistanceY", 10, 3, 1, 3, Q("99 mm")))
pad4 = doc.addObject("PartDesign::Pad", "Pad003")
body.addObject(pad4)
pad4.Profile = sketch7
pad4.Length = 10

# Sketch on XZ plane
sketch8 = doc.addObject("Sketcher::SketchObject", "Sketch007")
body.addObject(sketch8)
sketch8.AttachmentSupport = (doc.XZ_Plane, [""])
sketch8.MapMode = "FlatFace"
sketch8.AttachmentOffset = App.Placement(Vector(0, 0, -29.5), App.Rotation())
sketch8.addGeometry(Part.Circle(Vector(19, -50.8, 0), Vector(0, 0, 1), 4.2), False)
sketch8.addGeometry(Part.Circle(Vector(-19, -50.8, 0), Vector(0, 0, 1), 4.2), False)
sketch8.addGeometry(Part.Circle(Vector(19, 50.8, 0), Vector(0, 0, 1), 4.2), False)
sketch8.addGeometry(Part.Circle(Vector(-19, 50.8, 0), Vector(0, 0, 1), 4.2), False)
sketch8.addConstraint(Sketcher.Constraint("Equal", 0, 1))
sketch8.addConstraint(Sketcher.Constraint("Equal", 1, 2))
sketch8.addConstraint(Sketcher.Constraint("Equal", 2, 3))
sketch8.addConstraint(Sketcher.Constraint("Symmetric", 1, 3, 2, 3, -1, 1))
sketch8.addConstraint(Sketcher.Constraint("Symmetric", 0, 3, 3, 3, -1, 1))
sketch8.addConstraint(Sketcher.Constraint("Symmetric", 0, 3, 1, 3, -2))
sketch8.addConstraint(Sketcher.Constraint("Diameter", 0, Q("8.5 mm")))
sketch8.addConstraint(Sketcher.Constraint("DistanceX", -1, 1, 0, 3, Q("19 mm")))
sketch8.addConstraint(Sketcher.Constraint("DistanceY", 0, 3, 2, 3, Q("101.5 mm")))
pocket4 = doc.addObject("PartDesign::Pocket", "Pocket003")
body.addObject(pocket4)
pocket4.Profile = sketch8
pocket4.Length = 7

# Sketch on YZ plane
sketch9 = doc.addObject("Sketcher::SketchObject", "Sketch008")
body.addObject(sketch9)
sketch9.AttachmentSupport = (doc.YZ_Plane, [""])
sketch9.MapMode = "FlatFace"
sketch9.AttachmentOffset = App.Placement(Vector(0, 0, 30), App.Rotation())
sketch9.addGeometry(Part.LineSegment(Vector(29.5, 56.75, 0), Vector(29.5, 44.75, 0)), False)
sketch9.addGeometry(Part.BSplineCurve([Vector(29.5, 44.75, 0), Vector(33.25, 44.75, 0), Vector(36.5, 48.75, 0), Vector(36.5, 56.75, 0)], [4, 4], [1, 2], False, 3, [1, 1, 1, 1], False), False)
sketch9.addGeometry(Part.LineSegment(Vector(36.5, 56.75, 0), Vector(29.5, 56.75, 0)), False)
sketch9.addGeometry(Part.BSplineCurve([Vector(29.5, -44.75, 0), Vector(33.25, -44.75, 0), Vector(36.5, -48.75, 0), Vector(36.5, -56.75, 0)], [4, 4], [1, 2], False, 3, [1, 1, 1, 1], False), False)
sketch9.addGeometry(Part.LineSegment(Vector(29.5, -44.75, 0), Vector(29.5, -56.75, 0)), False)
sketch9.addGeometry(Part.LineSegment(Vector(29.5, -56.75, 0), Vector(36.5, -56.75, 0)), False)
sketch9.addConstraint(Sketcher.Constraint("Block", 1))
sketch9.addConstraint(Sketcher.Constraint("Block", 3))
sketch9.addConstraint(Sketcher.Constraint("Coincident", 0, 2, 1, 1))
sketch9.addConstraint(Sketcher.Constraint("Coincident", 1, 2, 2, 1))
sketch9.addConstraint(Sketcher.Constraint("Coincident", 2, 2, 0, 1))
sketch9.addConstraint(Sketcher.Constraint("Coincident", 3, 1, 4, 1))
sketch9.addConstraint(Sketcher.Constraint("Coincident", 4, 2, 5, 1))
sketch9.addConstraint(Sketcher.Constraint("Coincident", 5, 2, 3, 2))
sketch9.addConstraint(Sketcher.Constraint("Vertical", 0))
sketch9.addConstraint(Sketcher.Constraint("Horizontal", 2))
sketch9.addConstraint(Sketcher.Constraint("Vertical", 4))
sketch9.addConstraint(Sketcher.Constraint("Horizontal", 5))
pocket5 = doc.addObject("PartDesign::Pocket", "Pocket004")
body.addObject(pocket5)
pocket5.Profile = sketch9
pocket5.Type = "ThroughAll"

doc.recompute()
